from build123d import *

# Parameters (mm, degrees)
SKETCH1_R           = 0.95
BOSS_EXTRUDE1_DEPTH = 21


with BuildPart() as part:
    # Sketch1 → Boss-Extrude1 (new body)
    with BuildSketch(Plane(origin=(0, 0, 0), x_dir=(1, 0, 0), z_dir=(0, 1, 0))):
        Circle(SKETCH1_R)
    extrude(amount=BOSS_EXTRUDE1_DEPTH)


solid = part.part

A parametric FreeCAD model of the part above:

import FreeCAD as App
import Part
import Sketcher

V = App.Vector
Q = App.Units.Quantity

doc = App.newDocument("Part")
body = doc.addObject("PartDesign::Body", "Body")

# Sketch on XZ plane
sketch1 = body.newObject("Sketcher::SketchObject", "Sketch")
sketch1.AttachmentSupport = (doc.getObject("XZ_Plane"), [""])
sketch1.MapMode = "FlatFace"
sketch1.addGeometry(Part.Circle(V(0, 0, 0), V(0, 0, 1), 0.9), False)
sketch1.addConstraint([
    Sketcher.Constraint("Coincident", 0, 3, -1, 1),
    Sketcher.Constraint("Diameter", 0, Q("1.9 mm")),
])
pad1 = body.newObject("PartDesign::Pad", "Pad")
pad1.Profile = sketch1
pad1.Length = 21
pad1.Reversed = True

doc.recompute()
